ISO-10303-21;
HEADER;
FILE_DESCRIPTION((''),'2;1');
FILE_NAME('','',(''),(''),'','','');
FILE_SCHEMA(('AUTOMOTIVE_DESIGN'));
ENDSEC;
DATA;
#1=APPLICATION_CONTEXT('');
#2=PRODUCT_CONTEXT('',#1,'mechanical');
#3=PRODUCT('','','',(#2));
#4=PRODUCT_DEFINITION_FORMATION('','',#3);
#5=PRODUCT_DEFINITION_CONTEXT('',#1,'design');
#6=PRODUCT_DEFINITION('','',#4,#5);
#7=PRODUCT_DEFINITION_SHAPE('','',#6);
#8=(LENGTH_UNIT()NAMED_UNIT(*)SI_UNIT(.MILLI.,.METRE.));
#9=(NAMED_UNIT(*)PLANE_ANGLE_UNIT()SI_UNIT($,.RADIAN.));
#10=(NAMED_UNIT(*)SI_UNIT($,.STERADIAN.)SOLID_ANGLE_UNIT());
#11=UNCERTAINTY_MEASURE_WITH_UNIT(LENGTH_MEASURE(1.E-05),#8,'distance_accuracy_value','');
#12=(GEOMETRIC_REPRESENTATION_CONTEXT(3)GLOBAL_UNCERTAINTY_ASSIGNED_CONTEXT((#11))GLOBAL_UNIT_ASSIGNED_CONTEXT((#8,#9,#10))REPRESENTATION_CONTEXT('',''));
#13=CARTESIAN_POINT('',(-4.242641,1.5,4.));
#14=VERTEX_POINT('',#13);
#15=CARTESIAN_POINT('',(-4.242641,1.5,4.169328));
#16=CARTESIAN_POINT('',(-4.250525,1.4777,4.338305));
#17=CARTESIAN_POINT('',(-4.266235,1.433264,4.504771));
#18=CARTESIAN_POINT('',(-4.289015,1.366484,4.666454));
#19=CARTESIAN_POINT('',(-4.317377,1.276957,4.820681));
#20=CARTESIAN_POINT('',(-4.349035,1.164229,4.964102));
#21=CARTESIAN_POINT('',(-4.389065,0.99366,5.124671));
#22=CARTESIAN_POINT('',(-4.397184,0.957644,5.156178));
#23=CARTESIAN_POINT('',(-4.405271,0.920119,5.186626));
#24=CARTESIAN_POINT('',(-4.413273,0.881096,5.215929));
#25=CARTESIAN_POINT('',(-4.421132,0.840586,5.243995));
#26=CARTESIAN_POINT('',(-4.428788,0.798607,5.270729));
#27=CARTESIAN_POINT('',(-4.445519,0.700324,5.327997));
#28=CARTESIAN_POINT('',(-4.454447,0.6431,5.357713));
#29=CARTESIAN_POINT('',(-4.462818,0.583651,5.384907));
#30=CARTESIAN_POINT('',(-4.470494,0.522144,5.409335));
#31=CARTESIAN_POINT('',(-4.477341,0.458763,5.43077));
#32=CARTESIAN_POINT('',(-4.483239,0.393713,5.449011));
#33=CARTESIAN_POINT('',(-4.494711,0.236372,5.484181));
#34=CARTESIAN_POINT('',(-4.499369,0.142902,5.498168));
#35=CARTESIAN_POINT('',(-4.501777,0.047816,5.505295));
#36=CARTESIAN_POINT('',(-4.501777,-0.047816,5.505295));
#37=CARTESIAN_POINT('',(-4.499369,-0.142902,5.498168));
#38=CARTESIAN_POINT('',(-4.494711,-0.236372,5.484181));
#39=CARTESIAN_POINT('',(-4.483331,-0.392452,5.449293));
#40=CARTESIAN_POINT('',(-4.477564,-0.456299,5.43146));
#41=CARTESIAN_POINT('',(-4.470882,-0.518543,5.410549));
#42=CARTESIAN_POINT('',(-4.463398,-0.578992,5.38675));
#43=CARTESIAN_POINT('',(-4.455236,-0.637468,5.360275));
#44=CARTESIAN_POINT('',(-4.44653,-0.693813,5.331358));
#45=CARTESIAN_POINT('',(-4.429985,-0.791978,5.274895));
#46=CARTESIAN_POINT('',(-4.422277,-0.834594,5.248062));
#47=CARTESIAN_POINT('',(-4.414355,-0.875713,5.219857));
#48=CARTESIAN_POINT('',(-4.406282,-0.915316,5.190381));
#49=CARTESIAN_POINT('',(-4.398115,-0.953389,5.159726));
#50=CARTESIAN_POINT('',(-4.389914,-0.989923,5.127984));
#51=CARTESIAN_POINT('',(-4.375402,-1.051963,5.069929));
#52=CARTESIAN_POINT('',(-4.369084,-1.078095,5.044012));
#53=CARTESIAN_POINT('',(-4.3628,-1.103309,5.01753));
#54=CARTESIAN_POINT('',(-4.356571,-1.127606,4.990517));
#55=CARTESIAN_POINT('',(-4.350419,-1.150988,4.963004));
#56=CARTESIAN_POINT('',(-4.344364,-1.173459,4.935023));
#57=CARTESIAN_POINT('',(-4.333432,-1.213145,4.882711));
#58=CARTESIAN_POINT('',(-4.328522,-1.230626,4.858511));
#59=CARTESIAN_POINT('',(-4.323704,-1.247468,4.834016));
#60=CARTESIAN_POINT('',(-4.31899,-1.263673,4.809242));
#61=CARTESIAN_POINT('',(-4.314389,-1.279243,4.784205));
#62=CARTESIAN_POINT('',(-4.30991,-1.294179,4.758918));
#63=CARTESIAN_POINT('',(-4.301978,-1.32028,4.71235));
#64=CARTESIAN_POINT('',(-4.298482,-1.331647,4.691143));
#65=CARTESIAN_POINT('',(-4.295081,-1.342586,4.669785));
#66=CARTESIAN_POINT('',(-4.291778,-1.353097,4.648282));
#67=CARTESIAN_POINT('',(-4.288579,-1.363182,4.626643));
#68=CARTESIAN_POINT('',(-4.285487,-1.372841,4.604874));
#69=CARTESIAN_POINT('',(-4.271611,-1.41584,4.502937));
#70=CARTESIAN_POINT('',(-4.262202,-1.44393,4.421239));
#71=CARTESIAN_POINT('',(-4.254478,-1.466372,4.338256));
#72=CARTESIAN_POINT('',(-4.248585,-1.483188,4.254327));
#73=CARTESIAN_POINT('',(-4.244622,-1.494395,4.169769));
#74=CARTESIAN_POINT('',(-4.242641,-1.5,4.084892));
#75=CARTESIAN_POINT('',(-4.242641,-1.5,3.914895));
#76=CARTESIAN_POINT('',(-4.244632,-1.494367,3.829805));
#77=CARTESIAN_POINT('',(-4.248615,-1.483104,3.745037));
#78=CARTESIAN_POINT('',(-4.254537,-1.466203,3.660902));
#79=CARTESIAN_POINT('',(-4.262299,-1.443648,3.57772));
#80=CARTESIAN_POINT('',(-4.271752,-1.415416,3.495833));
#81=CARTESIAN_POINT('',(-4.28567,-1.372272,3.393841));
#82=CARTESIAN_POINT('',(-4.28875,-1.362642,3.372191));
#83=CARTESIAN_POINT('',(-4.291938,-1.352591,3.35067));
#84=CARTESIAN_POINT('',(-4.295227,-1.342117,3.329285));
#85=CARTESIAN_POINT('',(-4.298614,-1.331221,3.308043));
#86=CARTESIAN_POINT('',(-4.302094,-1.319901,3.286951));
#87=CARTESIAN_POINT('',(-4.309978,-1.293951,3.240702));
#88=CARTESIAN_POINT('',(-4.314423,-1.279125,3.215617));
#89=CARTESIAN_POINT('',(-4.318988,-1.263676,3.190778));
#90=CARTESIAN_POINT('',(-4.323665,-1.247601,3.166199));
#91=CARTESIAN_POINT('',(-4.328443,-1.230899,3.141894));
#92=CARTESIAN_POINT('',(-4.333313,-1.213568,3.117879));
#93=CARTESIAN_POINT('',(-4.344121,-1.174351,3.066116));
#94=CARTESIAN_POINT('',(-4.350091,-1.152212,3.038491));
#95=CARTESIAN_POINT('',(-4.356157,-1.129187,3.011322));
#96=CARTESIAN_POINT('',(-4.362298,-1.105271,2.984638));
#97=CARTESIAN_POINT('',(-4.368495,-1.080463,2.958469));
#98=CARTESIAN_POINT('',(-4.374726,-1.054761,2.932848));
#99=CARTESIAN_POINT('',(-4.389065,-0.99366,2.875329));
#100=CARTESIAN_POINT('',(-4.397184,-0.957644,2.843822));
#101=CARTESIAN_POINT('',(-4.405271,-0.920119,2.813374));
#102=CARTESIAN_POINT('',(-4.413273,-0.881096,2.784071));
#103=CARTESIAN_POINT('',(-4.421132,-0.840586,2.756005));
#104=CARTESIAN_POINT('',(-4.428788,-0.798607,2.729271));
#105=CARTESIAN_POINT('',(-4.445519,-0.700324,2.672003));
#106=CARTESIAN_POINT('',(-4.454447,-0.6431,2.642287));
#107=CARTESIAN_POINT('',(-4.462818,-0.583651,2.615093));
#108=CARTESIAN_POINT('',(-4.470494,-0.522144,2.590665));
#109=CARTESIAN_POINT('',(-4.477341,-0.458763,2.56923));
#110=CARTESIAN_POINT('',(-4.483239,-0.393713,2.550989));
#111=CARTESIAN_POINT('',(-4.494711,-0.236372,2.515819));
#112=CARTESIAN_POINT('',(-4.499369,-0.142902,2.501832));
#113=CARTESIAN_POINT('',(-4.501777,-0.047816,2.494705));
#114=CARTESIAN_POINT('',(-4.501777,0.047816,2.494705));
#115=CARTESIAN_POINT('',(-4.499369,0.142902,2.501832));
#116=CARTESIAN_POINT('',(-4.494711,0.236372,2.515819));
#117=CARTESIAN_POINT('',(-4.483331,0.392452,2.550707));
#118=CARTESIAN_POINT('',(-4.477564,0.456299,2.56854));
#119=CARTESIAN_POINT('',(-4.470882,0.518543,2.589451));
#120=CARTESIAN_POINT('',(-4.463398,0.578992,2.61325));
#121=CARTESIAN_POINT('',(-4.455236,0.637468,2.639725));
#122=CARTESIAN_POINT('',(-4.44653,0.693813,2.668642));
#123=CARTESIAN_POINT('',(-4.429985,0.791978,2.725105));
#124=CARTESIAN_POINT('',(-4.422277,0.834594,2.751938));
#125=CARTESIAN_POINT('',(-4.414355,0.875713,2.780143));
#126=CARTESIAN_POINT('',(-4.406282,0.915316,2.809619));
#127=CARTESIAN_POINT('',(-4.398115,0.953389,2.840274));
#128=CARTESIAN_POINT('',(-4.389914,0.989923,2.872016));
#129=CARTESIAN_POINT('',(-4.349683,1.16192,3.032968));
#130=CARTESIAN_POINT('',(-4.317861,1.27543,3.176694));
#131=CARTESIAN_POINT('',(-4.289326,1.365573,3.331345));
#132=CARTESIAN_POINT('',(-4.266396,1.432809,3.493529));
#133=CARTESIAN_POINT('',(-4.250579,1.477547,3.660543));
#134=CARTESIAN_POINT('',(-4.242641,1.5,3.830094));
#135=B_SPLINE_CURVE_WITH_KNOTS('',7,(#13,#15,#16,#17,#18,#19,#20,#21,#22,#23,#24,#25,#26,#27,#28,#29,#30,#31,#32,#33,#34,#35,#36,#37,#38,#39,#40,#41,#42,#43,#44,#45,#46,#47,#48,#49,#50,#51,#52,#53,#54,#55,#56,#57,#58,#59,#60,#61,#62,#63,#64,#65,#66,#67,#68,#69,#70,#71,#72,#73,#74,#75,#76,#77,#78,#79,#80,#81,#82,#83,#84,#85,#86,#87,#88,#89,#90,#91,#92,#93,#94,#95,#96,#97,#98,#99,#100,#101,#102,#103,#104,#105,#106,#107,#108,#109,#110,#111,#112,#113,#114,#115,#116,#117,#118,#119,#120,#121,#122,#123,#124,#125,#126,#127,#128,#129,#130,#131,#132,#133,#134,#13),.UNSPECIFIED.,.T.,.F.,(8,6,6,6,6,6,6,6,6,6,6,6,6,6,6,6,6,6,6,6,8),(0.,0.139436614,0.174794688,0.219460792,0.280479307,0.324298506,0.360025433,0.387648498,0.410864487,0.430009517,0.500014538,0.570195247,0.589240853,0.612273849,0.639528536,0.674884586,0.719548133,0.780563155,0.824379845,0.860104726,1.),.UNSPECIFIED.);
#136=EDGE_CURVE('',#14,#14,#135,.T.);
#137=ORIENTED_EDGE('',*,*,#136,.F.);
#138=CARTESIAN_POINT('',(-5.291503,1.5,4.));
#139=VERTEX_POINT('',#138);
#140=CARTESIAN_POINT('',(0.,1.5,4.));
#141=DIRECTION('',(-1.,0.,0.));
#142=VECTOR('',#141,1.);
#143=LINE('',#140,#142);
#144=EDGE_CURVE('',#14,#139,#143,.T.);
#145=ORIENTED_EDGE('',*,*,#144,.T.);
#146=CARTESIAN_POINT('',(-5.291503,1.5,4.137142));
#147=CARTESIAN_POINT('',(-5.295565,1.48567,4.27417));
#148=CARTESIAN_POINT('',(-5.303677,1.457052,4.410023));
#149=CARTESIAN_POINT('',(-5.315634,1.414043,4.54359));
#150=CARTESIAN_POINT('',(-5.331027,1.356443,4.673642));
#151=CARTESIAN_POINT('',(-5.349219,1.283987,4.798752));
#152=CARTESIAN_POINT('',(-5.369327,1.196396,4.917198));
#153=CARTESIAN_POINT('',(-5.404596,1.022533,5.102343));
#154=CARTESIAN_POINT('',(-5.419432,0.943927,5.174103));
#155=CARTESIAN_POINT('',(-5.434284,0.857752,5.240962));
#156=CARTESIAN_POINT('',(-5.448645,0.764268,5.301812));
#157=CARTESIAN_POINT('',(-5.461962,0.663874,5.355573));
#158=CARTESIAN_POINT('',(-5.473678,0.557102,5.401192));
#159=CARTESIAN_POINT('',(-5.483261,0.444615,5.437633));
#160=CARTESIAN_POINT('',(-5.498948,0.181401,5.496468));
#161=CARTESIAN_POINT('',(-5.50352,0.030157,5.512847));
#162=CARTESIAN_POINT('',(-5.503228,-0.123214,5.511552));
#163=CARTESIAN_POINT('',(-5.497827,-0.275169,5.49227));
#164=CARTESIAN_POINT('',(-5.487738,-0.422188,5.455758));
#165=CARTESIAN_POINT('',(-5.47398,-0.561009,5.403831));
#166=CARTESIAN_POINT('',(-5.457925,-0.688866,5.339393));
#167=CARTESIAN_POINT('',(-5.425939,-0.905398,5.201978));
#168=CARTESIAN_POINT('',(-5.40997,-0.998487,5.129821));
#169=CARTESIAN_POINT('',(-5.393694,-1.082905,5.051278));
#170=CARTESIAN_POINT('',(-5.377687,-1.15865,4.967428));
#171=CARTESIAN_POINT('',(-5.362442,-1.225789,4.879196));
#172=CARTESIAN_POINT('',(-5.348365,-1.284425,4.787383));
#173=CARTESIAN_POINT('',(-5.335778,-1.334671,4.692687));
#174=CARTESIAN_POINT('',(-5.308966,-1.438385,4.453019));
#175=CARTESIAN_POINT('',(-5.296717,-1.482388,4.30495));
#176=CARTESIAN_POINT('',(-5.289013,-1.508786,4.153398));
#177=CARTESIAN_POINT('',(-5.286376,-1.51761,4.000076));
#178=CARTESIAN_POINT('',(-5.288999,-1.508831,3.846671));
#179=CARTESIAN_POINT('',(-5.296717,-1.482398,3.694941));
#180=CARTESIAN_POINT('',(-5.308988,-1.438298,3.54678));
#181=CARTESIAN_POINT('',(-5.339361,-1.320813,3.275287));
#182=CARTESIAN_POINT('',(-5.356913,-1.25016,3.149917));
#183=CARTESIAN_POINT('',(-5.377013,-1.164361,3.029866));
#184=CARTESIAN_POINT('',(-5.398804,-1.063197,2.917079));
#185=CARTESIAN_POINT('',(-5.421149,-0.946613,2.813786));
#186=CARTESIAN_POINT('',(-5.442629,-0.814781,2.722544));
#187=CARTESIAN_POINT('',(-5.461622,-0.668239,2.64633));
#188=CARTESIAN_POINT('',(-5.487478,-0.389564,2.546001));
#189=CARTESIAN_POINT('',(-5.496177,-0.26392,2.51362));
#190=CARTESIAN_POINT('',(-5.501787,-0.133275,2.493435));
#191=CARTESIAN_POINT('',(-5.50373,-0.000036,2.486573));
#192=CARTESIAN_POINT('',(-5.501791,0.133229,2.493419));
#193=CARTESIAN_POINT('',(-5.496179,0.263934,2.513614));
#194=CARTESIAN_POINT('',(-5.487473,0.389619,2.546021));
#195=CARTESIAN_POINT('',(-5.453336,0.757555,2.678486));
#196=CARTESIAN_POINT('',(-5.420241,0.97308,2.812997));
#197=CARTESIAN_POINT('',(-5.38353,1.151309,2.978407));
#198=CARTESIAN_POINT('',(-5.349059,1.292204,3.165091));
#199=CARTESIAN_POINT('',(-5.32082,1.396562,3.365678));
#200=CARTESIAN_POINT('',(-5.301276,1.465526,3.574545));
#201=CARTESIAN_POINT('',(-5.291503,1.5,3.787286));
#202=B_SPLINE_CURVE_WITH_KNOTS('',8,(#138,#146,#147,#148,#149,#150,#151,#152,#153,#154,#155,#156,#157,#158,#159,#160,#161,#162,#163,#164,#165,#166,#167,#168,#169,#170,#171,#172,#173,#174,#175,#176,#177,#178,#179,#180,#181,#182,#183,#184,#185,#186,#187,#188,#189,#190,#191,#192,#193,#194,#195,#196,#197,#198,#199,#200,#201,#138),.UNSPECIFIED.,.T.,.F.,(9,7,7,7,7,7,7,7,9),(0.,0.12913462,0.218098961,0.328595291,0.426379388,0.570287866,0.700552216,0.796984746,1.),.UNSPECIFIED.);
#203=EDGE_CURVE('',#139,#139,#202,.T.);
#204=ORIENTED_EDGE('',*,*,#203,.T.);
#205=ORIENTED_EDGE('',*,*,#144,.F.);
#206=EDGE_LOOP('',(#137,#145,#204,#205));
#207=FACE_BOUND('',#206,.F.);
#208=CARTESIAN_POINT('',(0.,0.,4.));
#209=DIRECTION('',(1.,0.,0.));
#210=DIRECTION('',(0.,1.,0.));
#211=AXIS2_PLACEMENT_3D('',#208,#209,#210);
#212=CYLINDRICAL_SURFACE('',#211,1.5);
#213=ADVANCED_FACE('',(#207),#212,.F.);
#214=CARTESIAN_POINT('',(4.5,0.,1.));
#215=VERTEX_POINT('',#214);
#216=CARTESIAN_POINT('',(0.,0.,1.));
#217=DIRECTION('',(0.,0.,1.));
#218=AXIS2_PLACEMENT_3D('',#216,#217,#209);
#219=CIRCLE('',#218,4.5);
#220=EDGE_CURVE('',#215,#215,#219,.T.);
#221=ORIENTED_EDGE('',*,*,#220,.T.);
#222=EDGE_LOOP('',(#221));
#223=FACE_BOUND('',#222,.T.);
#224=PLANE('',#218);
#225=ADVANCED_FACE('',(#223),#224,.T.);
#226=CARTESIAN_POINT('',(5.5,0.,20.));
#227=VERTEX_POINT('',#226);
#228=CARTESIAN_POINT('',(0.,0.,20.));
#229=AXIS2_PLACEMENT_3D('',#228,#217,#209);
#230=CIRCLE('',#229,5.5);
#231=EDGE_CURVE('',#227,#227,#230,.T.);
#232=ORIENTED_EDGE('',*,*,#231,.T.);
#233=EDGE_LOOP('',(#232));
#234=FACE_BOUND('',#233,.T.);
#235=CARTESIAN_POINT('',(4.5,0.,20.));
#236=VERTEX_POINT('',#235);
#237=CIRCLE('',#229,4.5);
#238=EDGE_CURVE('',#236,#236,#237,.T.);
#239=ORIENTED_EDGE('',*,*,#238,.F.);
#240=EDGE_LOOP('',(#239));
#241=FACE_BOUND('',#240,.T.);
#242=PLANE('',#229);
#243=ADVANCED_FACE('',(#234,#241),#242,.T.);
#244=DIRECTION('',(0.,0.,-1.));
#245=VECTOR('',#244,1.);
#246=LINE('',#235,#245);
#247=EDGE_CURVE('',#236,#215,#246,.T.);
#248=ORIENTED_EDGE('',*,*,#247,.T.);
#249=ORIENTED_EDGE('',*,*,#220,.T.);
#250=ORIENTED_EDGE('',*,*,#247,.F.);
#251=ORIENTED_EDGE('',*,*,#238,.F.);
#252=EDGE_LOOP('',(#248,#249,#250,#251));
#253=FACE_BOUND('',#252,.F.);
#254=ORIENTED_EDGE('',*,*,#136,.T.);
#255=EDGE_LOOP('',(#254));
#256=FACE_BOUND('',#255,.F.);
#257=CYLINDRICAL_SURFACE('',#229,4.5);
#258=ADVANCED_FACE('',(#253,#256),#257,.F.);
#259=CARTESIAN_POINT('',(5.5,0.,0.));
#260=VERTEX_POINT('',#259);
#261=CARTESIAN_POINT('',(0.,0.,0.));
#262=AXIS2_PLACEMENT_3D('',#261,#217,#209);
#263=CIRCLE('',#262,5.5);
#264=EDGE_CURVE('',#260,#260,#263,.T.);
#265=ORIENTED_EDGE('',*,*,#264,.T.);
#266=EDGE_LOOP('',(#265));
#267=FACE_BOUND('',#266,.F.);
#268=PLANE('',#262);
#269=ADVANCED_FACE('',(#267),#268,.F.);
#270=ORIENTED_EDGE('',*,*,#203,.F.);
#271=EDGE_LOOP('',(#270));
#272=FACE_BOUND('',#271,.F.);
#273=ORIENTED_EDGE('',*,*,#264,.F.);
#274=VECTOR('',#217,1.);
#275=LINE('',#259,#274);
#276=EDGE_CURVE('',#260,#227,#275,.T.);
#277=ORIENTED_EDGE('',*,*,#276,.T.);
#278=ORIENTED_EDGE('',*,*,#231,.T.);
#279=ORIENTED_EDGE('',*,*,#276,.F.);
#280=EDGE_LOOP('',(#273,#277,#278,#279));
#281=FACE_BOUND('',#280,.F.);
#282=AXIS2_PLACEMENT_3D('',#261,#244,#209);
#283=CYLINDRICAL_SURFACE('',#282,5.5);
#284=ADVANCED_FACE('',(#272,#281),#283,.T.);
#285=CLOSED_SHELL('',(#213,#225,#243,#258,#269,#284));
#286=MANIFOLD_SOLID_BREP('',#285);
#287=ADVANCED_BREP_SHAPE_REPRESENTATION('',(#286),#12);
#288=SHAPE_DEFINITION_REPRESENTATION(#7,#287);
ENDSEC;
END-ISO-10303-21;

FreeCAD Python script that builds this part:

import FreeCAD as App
import Part
import Sketcher
Q = App.Units.Quantity

doc = App.newDocument("Part")
body = doc.addObject("PartDesign::Body", "Body")

sketch1 = doc.addObject("Sketcher::SketchObject", "Sketch")
body.addObject(sketch1)
sketch1.AttachmentSupport = (doc.XY_Plane, [""])
sketch1.MapMode = "FlatFace"
sketch1.addGeometry(Part.Circle(App.Vector(0, 0, 0), App.Vector(0, 0, 1), 6), False)
sketch1.addConstraint([
    Sketcher.Constraint("Coincident", 0, 3, -1, 1),
    Sketcher.Constraint("Diameter", 0, Q("11 mm")),
])
pad1 = doc.addObject("PartDesign::Pad", "Pad")
body.addObject(pad1)
pad1.Profile = sketch1
pad1.Length = 20

sketch2 = doc.addObject("Sketcher::SketchObject", "Sketch001")
body.addObject(sketch2)
sketch2.AttachmentSupport = (doc.XY_Plane, [""])
sketch2.MapMode = "FlatFace"
sketch2.AttachmentOffset = App.Placement(App.Vector(0, 0, 20), App.Rotation())
sketch2.addGeometry(Part.Circle(App.Vector(0, 0, 0), App.Vector(0, 0, 1), 4.5), False)
sketch2.addConstraint([
    Sketcher.Constraint("Coincident", 0, 3, -1, 1),
    Sketcher.Constraint("Diameter", 0, Q("9 mm")),
])
pocket1 = doc.addObject("PartDesign::Pocket", "Pocket")
body.addObject(pocket1)
pocket1.Profile = sketch2
pocket1.Length = 19

sketch3 = doc.addObject("Sketcher::SketchObject", "Sketch002")
body.addObject(sketch3)
sketch3.AttachmentSupport = (doc.YZ_Plane, [""])
sketch3.MapMode = "FlatFace"
sketch3.addGeometry(Part.Circle(App.Vector(0, 4, 0), App.Vector(0, 0, 1), 1.5), False)
sketch3.addConstraint([
    Sketcher.Constraint("PointOnObject", 0, 3, -2),
    Sketcher.Constraint("Diameter", 0, Q("3 mm")),
    Sketcher.Constraint("DistanceY", -1, 1, 0, 3, Q("4 mm")),
])
pocket2 = doc.addObject("PartDesign::Pocket", "Pocket001")
body.addObject(pocket2)
pocket2.Profile = sketch3
pocket2.Length = 25

doc.recompute()
